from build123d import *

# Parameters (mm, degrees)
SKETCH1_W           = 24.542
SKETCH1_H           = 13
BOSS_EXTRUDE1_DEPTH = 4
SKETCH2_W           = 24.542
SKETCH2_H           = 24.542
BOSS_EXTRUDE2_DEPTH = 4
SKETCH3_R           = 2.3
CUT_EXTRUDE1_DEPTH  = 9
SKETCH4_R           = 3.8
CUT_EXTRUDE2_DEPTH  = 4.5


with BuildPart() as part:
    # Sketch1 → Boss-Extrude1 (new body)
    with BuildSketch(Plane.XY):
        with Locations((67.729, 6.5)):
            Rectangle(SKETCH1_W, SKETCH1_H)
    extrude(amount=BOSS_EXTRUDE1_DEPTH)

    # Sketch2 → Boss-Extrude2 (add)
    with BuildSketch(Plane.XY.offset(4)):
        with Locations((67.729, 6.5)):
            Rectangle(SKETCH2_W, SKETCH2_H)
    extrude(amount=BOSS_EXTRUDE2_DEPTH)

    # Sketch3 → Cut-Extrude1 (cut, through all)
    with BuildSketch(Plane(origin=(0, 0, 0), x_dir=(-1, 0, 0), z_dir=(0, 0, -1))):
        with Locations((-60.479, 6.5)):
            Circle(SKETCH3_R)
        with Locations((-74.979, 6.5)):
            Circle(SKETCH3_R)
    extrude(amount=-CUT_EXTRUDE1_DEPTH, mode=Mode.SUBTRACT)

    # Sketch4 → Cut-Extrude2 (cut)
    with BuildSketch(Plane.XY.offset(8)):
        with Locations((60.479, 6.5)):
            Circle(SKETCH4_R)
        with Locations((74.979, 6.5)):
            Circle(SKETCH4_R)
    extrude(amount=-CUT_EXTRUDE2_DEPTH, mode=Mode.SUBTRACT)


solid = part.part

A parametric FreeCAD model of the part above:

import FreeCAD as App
import Part
import Sketcher
Q = App.Units.Quantity

doc = App.newDocument("Part")
body = doc.addObject("PartDesign::Body", "Body")

sketch1 = body.newObject("Sketcher::SketchObject", "Sketch")
sketch1.AttachmentSupport = (doc.getObject("XY_Plane"), [""])
sketch1.MapMode = "FlatFace"
sketch1.addGeometry([
    Part.LineSegment(App.Vector(55.458, 13, 0), App.Vector(55.458, 0, 0)),
    Part.LineSegment(App.Vector(55.458, 0, 0), App.Vector(80, 0, 0)),
    Part.LineSegment(App.Vector(80, 0, 0), App.Vector(80, 13, 0)),
    Part.LineSegment(App.Vector(80, 13, 0), App.Vector(55.458, 13, 0)),
], False)
sketch1.addConstraint([
    Sketcher.Constraint("Coincident", 0, 2, 1, 1),
    Sketcher.Constraint("Coincident", 1, 2, 2, 1),
    Sketcher.Constraint("Coincident", 2, 2, 3, 1),
    Sketcher.Constraint("Coincident", 3, 2, 0, 1),
    Sketcher.Constraint("Vertical", 0),
    Sketcher.Constraint("Horizontal", 1),
    Sketcher.Constraint("Vertical", 2),
    Sketcher.Constraint("Horizontal", 3),
    Sketcher.Constraint("PointOnObject", 0, 2, -1),
    Sketcher.Constraint("DistanceY", 0, 2, 0, 1, Q("13 mm")),
    Sketcher.Constraint("DistanceX", -1, 1, 1, 2, Q("80 mm")),
    Sketcher.Constraint("DistanceX", 1, 1, 1, 2, Q("24.542 mm")),
])
pad1 = body.newObject("PartDesign::Pad", "Pad")
pad1.Profile = sketch1
pad1.Length = 4

sketch2 = body.newObject("Sketcher::SketchObject", "Sketch001")
sketch2.AttachmentSupport = (doc.getObject("XY_Plane"), [""])
sketch2.MapMode = "FlatFace"
sketch2.AttachmentOffset = App.Placement(App.Vector(0, 0, 4), App.Rotation())
sketch2.addGeometry([
    Part.LineSegment(App.Vector(55.458, 18.771, 0), App.Vector(55.458, -5.771, 0)),
    Part.LineSegment(App.Vector(55.458, -5.771, 0), App.Vector(80, -5.771, 0)),
    Part.LineSegment(App.Vector(80, -5.771, 0), App.Vector(80, 18.771, 0)),
    Part.LineSegment(App.Vector(80, 18.771, 0), App.Vector(55.458, 18.771, 0)),
], False)
sketch2.addConstraint([
    Sketcher.Constraint("Coincident", 0, 2, 1, 1),
    Sketcher.Constraint("Coincident", 1, 2, 2, 1),
    Sketcher.Constraint("Coincident", 2, 2, 3, 1),
    Sketcher.Constraint("Coincident", 3, 2, 0, 1),
    Sketcher.Constraint("Vertical", 0),
    Sketcher.Constraint("Horizontal", 1),
    Sketcher.Constraint("Vertical", 2),
    Sketcher.Constraint("Horizontal", 3),
    Sketcher.Constraint("Equal", 3, 0),
    Sketcher.Constraint("DistanceX", -1, 1, 1, 2, Q("80 mm")),
    Sketcher.Constraint("DistanceX", 1, 1, 1, 2, Q("24.542 mm")),
    Sketcher.Constraint("DistanceY", 0, 2, -1, 1, Q("5.771 mm")),
])
pad2 = body.newObject("PartDesign::Pad", "Pad001")
pad2.Profile = sketch2
pad2.Length = 4

sketch3 = body.newObject("Sketcher::SketchObject", "Sketch002")
sketch3.AttachmentSupport = (doc.getObject("XY_Plane"), [""])
sketch3.MapMode = "FlatFace"
sketch3.addGeometry([
    Part.Circle(App.Vector(60.479, 6.5, 0), App.Vector(0, 0, 1), 2.3),
    Part.Circle(App.Vector(74.979, 6.5, 0), App.Vector(0, 0, 1), 2.3),
], False)
sketch3.addConstraint([
    Sketcher.Constraint("Equal", 0, 1),
    Sketcher.Constraint("Horizontal", 0, 3, 1, 3),
    Sketcher.Constraint("Diameter", 0, Q("4.6 mm")),
    Sketcher.Constraint("DistanceY", -1, 1, 0, 3, Q("6.5 mm")),
    Sketcher.Constraint("DistanceX", 0, 3, 1, 3, Q("14.5 mm")),
    Sketcher.Constraint("DistanceX", -1, 1, 0, 3, Q("60.479 mm")),
])
pocket1 = body.newObject("PartDesign::Pocket", "Pocket")
pocket1.Profile = sketch3
pocket1.Type = "ThroughAll"
pocket1.Reversed = True

sketch4 = body.newObject("Sketcher::SketchObject", "Sketch003")
sketch4.AttachmentSupport = (doc.getObject("XY_Plane"), [""])
sketch4.MapMode = "FlatFace"
sketch4.AttachmentOffset = App.Placement(App.Vector(0, 0, 8), App.Rotation())
sketch4.addGeometry([
    Part.Circle(App.Vector(60.479, 6.5, 0), App.Vector(0, 0, 1), 3.8),
    Part.Circle(App.Vector(74.979, 6.5, 0), App.Vector(0, 0, 1), 3.8),
], False)
sketch4.addConstraint([
    Sketcher.Constraint("Equal", 0, 1),
    Sketcher.Constraint("Horizontal", 0, 3, 1, 3),
    Sketcher.Constraint("Diameter", 0, Q("7.6 mm")),
    Sketcher.Constraint("DistanceY", -1, 1, 0, 3, Q("6.5 mm")),
    Sketcher.Constraint("DistanceX", 0, 3, 1, 3, Q("14.5 mm")),
    Sketcher.Constraint("DistanceX", -1, 1, 0, 3, Q("60.479 mm")),
])
pocket2 = body.newObject("PartDesign::Pocket", "Pocket001")
pocket2.Profile = sketch4
pocket2.Length = 4.5

doc.recompute()
